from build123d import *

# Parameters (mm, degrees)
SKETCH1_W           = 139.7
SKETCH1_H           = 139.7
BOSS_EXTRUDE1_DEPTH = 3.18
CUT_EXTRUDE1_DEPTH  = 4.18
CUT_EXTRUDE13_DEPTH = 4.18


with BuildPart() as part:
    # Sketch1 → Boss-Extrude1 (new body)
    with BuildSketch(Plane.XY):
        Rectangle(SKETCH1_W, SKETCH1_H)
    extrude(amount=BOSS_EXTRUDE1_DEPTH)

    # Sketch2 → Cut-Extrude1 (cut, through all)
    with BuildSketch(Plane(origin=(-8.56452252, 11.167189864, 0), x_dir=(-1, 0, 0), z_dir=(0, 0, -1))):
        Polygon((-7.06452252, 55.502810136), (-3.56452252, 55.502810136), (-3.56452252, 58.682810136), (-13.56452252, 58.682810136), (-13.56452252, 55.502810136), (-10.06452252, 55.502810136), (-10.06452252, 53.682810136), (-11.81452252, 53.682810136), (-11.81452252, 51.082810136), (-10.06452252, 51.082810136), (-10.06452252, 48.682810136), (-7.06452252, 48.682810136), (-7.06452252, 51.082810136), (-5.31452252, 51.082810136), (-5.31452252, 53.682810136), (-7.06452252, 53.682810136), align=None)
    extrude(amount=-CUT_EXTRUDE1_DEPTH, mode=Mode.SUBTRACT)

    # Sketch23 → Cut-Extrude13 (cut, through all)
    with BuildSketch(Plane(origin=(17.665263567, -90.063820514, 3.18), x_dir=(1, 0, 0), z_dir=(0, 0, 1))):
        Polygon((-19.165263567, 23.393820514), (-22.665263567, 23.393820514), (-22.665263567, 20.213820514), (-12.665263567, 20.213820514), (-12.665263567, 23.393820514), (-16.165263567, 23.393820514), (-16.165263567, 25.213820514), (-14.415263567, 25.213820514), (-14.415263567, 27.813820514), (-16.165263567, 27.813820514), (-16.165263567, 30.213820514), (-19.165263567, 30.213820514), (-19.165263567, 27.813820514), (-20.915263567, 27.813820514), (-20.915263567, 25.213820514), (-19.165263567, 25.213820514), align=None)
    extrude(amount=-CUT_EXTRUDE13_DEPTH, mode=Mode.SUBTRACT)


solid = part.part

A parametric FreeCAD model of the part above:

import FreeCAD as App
import Part
import Sketcher

V = App.Vector
Q = App.Units.Quantity

doc = App.newDocument("Part")
body = doc.addObject("PartDesign::Body", "Body")

sketch1 = body.newObject("Sketcher::SketchObject", "Sketch")
sketch1.AttachmentSupport = (doc.getObject("XY_Plane"), [""])
sketch1.MapMode = "FlatFace"
sketch1.addGeometry([
    Part.LineSegment(V(-70, 70, 0), V(-70, -70, 0)),
    Part.LineSegment(V(-70, -70, 0), V(70, -70, 0)),
    Part.LineSegment(V(70, -70, 0), V(70, 70, 0)),
    Part.LineSegment(V(70, 70, 0), V(-70, 70, 0)),
], False)
sketch1.addConstraint([
    Sketcher.Constraint("Coincident", 0, 2, 1, 1),
    Sketcher.Constraint("Coincident", 1, 2, 2, 1),
    Sketcher.Constraint("Coincident", 2, 2, 3, 1),
    Sketcher.Constraint("Coincident", 3, 2, 0, 1),
    Sketcher.Constraint("Vertical", 0),
    Sketcher.Constraint("Horizontal", 1),
    Sketcher.Constraint("Vertical", 2),
    Sketcher.Constraint("Horizontal", 3),
    Sketcher.Constraint("Symmetric", 0, 2, 2, 2, -1, 1),
    Sketcher.Constraint("Equal", 3, 0),
    Sketcher.Constraint("DistanceX", 1, 1, 1, 2, Q("139.7 mm")),
])
pad1 = body.newObject("PartDesign::Pad", "Pad")
pad1.Profile = sketch1
pad1.Length = 3.18

sketch2 = body.newObject("Sketcher::SketchObject", "Sketch001")
sketch2.AttachmentSupport = (doc.getObject("XY_Plane"), [""])
sketch2.MapMode = "FlatFace"
sketch2.addGeometry([
    Part.LineSegment(V(-1.5, 66.7, 0), V(-5, 66.7, 0)),
    Part.LineSegment(V(-5, 66.7, 0), V(-5, 69.8, 0)),
    Part.LineSegment(V(-5, 69.8, 0), V(5, 69.8, 0)),
    Part.LineSegment(V(5, 69.8, 0), V(5, 66.7, 0)),
    Part.LineSegment(V(5, 66.7, 0), V(1.5, 66.7, 0)),
    Part.LineSegment(V(1.5, 66.7, 0), V(1.5, 64.8, 0)),
    Part.LineSegment(V(1.5, 64.8, 0), V(3.2, 64.8, 0)),
    Part.LineSegment(V(3.2, 64.8, 0), V(3.2, 62.2, 0)),
    Part.LineSegment(V(3.2, 62.2, 0), V(1.5, 62.2, 0)),
    Part.LineSegment(V(1.5, 62.2, 0), V(1.5, 59.9, 0)),
    Part.LineSegment(V(1.5, 59.9, 0), V(-1.5, 59.9, 0)),
    Part.LineSegment(V(-1.5, 59.9, 0), V(-1.5, 62.2, 0)),
    Part.LineSegment(V(-1.5, 62.2, 0), V(-3.2, 62.2, 0)),
    Part.LineSegment(V(-3.2, 62.2, 0), V(-3.2, 64.8, 0)),
    Part.LineSegment(V(-3.2, 64.8, 0), V(-1.5, 64.8, 0)),
    Part.LineSegment(V(-1.5, 64.8, 0), V(-1.5, 66.7, 0)),
], False)
sketch2.addConstraint([
    Sketcher.Constraint("Coincident", 0, 2, 1, 1),
    Sketcher.Constraint("Coincident", 1, 2, 2, 1),
    Sketcher.Constraint("Coincident", 2, 2, 3, 1),
    Sketcher.Constraint("Coincident", 3, 2, 4, 1),
    Sketcher.Constraint("Coincident", 4, 2, 5, 1),
    Sketcher.Constraint("Coincident", 5, 2, 6, 1),
    Sketcher.Constraint("Coincident", 6, 2, 7, 1),
    Sketcher.Constraint("Coincident", 7, 2, 8, 1),
    Sketcher.Constraint("Coincident", 8, 2, 9, 1),
    Sketcher.Constraint("Coincident", 9, 2, 10, 1),
    Sketcher.Constraint("Coincident", 10, 2, 11, 1),
    Sketcher.Constraint("Coincident", 11, 2, 12, 1),
    Sketcher.Constraint("Coincident", 12, 2, 13, 1),
    Sketcher.Constraint("Coincident", 13, 2, 14, 1),
    Sketcher.Constraint("Coincident", 14, 2, 15, 1),
    Sketcher.Constraint("Coincident", 15, 2, 0, 1),
    Sketcher.Constraint("Horizontal", 0),
    Sketcher.Constraint("Vertical", 1),
    Sketcher.Constraint("Horizontal", 2),
    Sketcher.Constraint("Vertical", 3),
    Sketcher.Constraint("Horizontal", 4),
    Sketcher.Constraint("Vertical", 5),
    Sketcher.Constraint("Horizontal", 6),
    Sketcher.Constraint("Vertical", 7),
    Sketcher.Constraint("Horizontal", 8),
    Sketcher.Constraint("Vertical", 9),
    Sketcher.Constraint("Horizontal", 10),
    Sketcher.Constraint("Vertical", 11),
    Sketcher.Constraint("Horizontal", 12),
    Sketcher.Constraint("Vertical", 13),
    Sketcher.Constraint("Horizontal", 14),
    Sketcher.Constraint("Vertical", 15),
    Sketcher.Constraint("Symmetric", 0, 2, 3, 2, -2),
    Sketcher.Constraint("Symmetric", 8, 2, 11, 2, -2),
    Sketcher.Constraint("Symmetric", 6, 2, 13, 2, -2),
    Sketcher.Constraint("Vertical", 5, 2, 8, 2),
    Sketcher.Constraint("Vertical", 11, 2, 14, 2),
    Sketcher.Constraint("DistanceX", 2, 1, 2, 2, Q("10 mm")),
    Sketcher.Constraint("DistanceX", 10, 2, 10, 1, Q("3 mm")),
    Sketcher.Constraint("DistanceY", 7, 2, 7, 1, Q("2.6 mm")),
    Sketcher.Constraint("DistanceY", 9, 2, 9, 1, Q("2.4 mm")),
    Sketcher.Constraint("DistanceY", 5, 2, 2, 2, Q("5 mm")),
    Sketcher.Constraint("DistanceX", 6, 1, 6, 2, Q("1.75 mm")),
    Sketcher.Constraint("DistanceY", 1, 1, 1, 2, Q("3.18 mm")),
    Sketcher.Constraint("DistanceY", -1, 1, 0, 2, Q("66.67 mm")),
])
pocket1 = body.newObject("PartDesign::Pocket", "Pocket")
pocket1.Profile = sketch2
pocket1.Type = "ThroughAll"
pocket1.Reversed = True

sketch3 = body.newObject("Sketcher::SketchObject", "Sketch002")
sketch3.AttachmentSupport = (doc.getObject("XY_Plane"), [""])
sketch3.MapMode = "FlatFace"
sketch3.AttachmentOffset = App.Placement(V(0, 0, 3.18), App.Rotation())
sketch3.addGeometry([
    Part.LineSegment(V(-1.5, -66.7, 0), V(-5, -66.7, 0)),
    Part.LineSegment(V(-5, -66.7, 0), V(-5, -69.8, 0)),
    Part.LineSegment(V(-5, -69.8, 0), V(5, -69.8, 0)),
    Part.LineSegment(V(5, -69.8, 0), V(5, -66.7, 0)),
    Part.LineSegment(V(5, -66.7, 0), V(1.5, -66.7, 0)),
    Part.LineSegment(V(1.5, -66.7, 0), V(1.5, -64.8, 0)),
    Part.LineSegment(V(1.5, -64.8, 0), V(3.2, -64.8, 0)),
    Part.LineSegment(V(3.2, -64.8, 0), V(3.2, -62.2, 0)),
    Part.LineSegment(V(3.2, -62.2, 0), V(1.5, -62.2, 0)),
    Part.LineSegment(V(1.5, -62.2, 0), V(1.5, -59.9, 0)),
    Part.LineSegment(V(1.5, -59.9, 0), V(-1.5, -59.9, 0)),
    Part.LineSegment(V(-1.5, -59.9, 0), V(-1.5, -62.2, 0)),
    Part.LineSegment(V(-1.5, -62.2, 0), V(-3.2, -62.2, 0)),
    Part.LineSegment(V(-3.2, -62.2, 0), V(-3.2, -64.8, 0)),
    Part.LineSegment(V(-3.2, -64.8, 0), V(-1.5, -64.8, 0)),
    Part.LineSegment(V(-1.5, -64.8, 0), V(-1.5, -66.7, 0)),
], False)
sketch3.addConstraint([
    Sketcher.Constraint("Coincident", 0, 2, 1, 1),
    Sketcher.Constraint("Coincident", 1, 2, 2, 1),
    Sketcher.Constraint("Coincident", 2, 2, 3, 1),
    Sketcher.Constraint("Coincident", 3, 2, 4, 1),
    Sketcher.Constraint("Coincident", 4, 2, 5, 1),
    Sketcher.Constraint("Coincident", 5, 2, 6, 1),
    Sketcher.Constraint("Coincident", 6, 2, 7, 1),
    Sketcher.Constraint("Coincident", 7, 2, 8, 1),
    Sketcher.Constraint("Coincident", 8, 2, 9, 1),
    Sketcher.Constraint("Coincident", 9, 2, 10, 1),
    Sketcher.Constraint("Coincident", 10, 2, 11, 1),
    Sketcher.Constraint("Coincident", 11, 2, 12, 1),
    Sketcher.Constraint("Coincident", 12, 2, 13, 1),
    Sketcher.Constraint("Coincident", 13, 2, 14, 1),
    Sketcher.Constraint("Coincident", 14, 2, 15, 1),
    Sketcher.Constraint("Coincident", 15, 2, 0, 1),
    Sketcher.Constraint("Horizontal", 0),
    Sketcher.Constraint("Vertical", 1),
    Sketcher.Constraint("Horizontal", 2),
    Sketcher.Constraint("Vertical", 3),
    Sketcher.Constraint("Horizontal", 4),
    Sketcher.Constraint("Vertical", 5),
    Sketcher.Constraint("Horizontal", 6),
    Sketcher.Constraint("Vertical", 7),
    Sketcher.Constraint("Horizontal", 8),
    Sketcher.Constraint("Vertical", 9),
    Sketcher.Constraint("Horizontal", 10),
    Sketcher.Constraint("Vertical", 11),
    Sketcher.Constraint("Horizontal", 12),
    Sketcher.Constraint("Vertical", 13),
    Sketcher.Constraint("Horizontal", 14),
    Sketcher.Constraint("Vertical", 15),
    Sketcher.Constraint("Symmetric", 0, 2, 3, 2, -2),
    Sketcher.Constraint("Symmetric", 8, 2, 11, 2, -2),
    Sketcher.Constraint("Symmetric", 6, 2, 13, 2, -2),
    Sketcher.Constraint("Vertical", 5, 2, 8, 2),
    Sketcher.Constraint("Vertical", 11, 2, 14, 2),
    Sketcher.Constraint("DistanceX", 2, 1, 2, 2, Q("10 mm")),
    Sketcher.Constraint("DistanceX", 10, 2, 10, 1, Q("3 mm")),
    Sketcher.Constraint("DistanceY", 7, 1, 7, 2, Q("2.6 mm")),
    Sketcher.Constraint("DistanceY", 9, 1, 9, 2, Q("2.4 mm")),
    Sketcher.Constraint("DistanceY", 2, 2, 5, 2, Q("5 mm")),
    Sketcher.Constraint("DistanceX", 6, 1, 6, 2, Q("1.75 mm")),
    Sketcher.Constraint("DistanceY", 1, 2, 1, 1, Q("3.18 mm")),
    Sketcher.Constraint("DistanceY", 0, 2, -1, 1, Q("66.67 mm")),
])
pocket2 = body.newObject("PartDesign::Pocket", "Pocket001")
pocket2.Profile = sketch3
pocket2.Type = "ThroughAll"

doc.recompute()
